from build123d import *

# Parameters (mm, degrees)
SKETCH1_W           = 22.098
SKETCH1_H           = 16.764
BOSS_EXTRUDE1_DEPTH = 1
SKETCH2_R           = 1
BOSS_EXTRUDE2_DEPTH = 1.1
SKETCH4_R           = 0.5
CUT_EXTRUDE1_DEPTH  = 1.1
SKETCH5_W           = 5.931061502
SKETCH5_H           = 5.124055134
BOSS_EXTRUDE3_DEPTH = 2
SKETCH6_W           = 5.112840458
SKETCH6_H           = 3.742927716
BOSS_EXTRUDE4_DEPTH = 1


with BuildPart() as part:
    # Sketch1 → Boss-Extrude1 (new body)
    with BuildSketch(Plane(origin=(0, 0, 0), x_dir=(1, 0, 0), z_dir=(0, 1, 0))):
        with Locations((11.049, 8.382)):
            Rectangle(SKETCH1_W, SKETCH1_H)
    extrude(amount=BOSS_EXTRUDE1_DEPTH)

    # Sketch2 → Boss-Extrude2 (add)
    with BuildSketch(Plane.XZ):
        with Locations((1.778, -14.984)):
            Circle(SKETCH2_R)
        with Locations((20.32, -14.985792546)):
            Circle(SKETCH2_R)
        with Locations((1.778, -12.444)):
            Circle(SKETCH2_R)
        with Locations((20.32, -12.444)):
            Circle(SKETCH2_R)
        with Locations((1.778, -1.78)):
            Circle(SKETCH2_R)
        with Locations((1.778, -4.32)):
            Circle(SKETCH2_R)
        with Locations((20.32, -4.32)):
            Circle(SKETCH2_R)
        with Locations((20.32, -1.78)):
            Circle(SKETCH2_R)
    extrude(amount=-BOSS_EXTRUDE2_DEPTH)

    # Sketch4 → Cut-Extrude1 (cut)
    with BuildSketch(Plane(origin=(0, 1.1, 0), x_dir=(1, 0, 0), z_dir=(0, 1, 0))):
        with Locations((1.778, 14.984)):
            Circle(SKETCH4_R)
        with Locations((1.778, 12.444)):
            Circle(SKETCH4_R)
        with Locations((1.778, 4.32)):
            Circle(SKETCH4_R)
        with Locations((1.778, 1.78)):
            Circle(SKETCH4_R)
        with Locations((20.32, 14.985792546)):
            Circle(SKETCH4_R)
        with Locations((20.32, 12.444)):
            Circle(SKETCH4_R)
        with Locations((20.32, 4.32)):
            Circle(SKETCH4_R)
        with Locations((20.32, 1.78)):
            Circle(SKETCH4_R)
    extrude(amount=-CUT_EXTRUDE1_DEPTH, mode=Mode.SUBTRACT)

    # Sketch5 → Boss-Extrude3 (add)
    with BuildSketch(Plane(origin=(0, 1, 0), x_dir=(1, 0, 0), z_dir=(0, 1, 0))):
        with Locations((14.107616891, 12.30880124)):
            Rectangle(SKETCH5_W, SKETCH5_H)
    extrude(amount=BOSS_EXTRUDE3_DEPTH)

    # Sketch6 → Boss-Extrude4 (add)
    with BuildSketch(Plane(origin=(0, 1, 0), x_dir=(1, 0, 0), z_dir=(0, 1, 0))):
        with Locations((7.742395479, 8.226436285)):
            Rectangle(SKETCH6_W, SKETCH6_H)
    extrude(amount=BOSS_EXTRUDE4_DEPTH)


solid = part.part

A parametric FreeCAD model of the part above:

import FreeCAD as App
import Part
import Sketcher
from FreeCAD import Vector


def add_polygon(sketch, points):
    """Adds a closed chain of lines whose ends are joined by coincident constraints."""
    first, n = sketch.GeometryCount, len(points)
    for a, b in zip(points, points[1:] + points[:1]):
        sketch.addGeometry(Part.LineSegment(App.Vector(*a, 0), App.Vector(*b, 0)), False)
    for i in range(n):
        sketch.addConstraint(Sketcher.Constraint("Coincident", first + i, 2, first + (i + 1) % n, 1))

doc = App.newDocument("Part")
body = doc.addObject("PartDesign::Body", "Body")

# Sketch on XZ plane
sketch1 = doc.addObject("Sketcher::SketchObject", "Sketch")
body.addObject(sketch1)
sketch1.AttachmentSupport = (doc.XZ_Plane, [""])
sketch1.MapMode = "FlatFace"
add_polygon(sketch1, [(0, -17), (0, 0), (22, 0), (22, -17)])  # lines 0-3
sketch1.addConstraint([
    Sketcher.Constraint("Vertical", 0),
    Sketcher.Constraint("Horizontal", 1),
    Sketcher.Constraint("Vertical", 2),
    Sketcher.Constraint("Horizontal", 3),
    Sketcher.Constraint("Coincident", 0, 2, -1, 1),
    Sketcher.Constraint("DistanceX", 1, 1, 1, 2, 22.098),
    Sketcher.Constraint("DistanceY", 0, 1, 0, 2, 16.764),
])
pad1 = doc.addObject("PartDesign::Pad", "Pad")
body.addObject(pad1)
pad1.Profile = sketch1
pad1.Length = 1
pad1.Reversed = True

# Sketch on XZ plane
sketch2 = doc.addObject("Sketcher::SketchObject", "Sketch001")
body.addObject(sketch2)
sketch2.AttachmentSupport = (doc.XZ_Plane, [""])
sketch2.MapMode = "FlatFace"
sketch2.addGeometry([
    Part.Circle(Vector(1.8, -15, 0), Vector(0, 0, 1), 1),  # 0
    Part.Circle(Vector(20.3, -15, 0), Vector(0, 0, 1), 1),  # 1
    Part.Circle(Vector(1.8, -12.4, 0), Vector(0, 0, 1), 1),  # 2
    Part.Circle(Vector(20.3, -12.4, 0), Vector(0, 0, 1), 1),  # 3
    Part.Circle(Vector(1.8, -1.8, 0), Vector(0, 0, 1), 1),  # 4
    Part.Circle(Vector(1.8, -4.3, 0), Vector(0, 0, 1), 1),  # 5
    Part.Circle(Vector(20.3, -4.3, 0), Vector(0, 0, 1), 1),  # 6
    Part.Circle(Vector(20.3, -1.8, 0), Vector(0, 0, 1), 1),  # 7
], False)
sketch2.addConstraint([
    Sketcher.Constraint("Equal", 0, 1),
    Sketcher.Constraint("Equal", 1, 2),
    Sketcher.Constraint("Equal", 2, 3),
    Sketcher.Constraint("Equal", 3, 4),
    Sketcher.Constraint("Equal", 4, 5),
    Sketcher.Constraint("Equal", 5, 6),
    Sketcher.Constraint("Equal", 6, 7),
    Sketcher.Constraint("Horizontal", 2, 3, 3, 3),
    Sketcher.Constraint("Horizontal", 5, 3, 6, 3),
    Sketcher.Constraint("Horizontal", 4, 3, 7, 3),
    Sketcher.Constraint("Vertical", 0, 3, 2, 3),
    Sketcher.Constraint("Vertical", 1, 3, 3, 3),
    Sketcher.Constraint("Vertical", 2, 3, 4, 3),
    Sketcher.Constraint("Vertical", 4, 3, 5, 3),
    Sketcher.Constraint("Vertical", 3, 3, 6, 3),
    Sketcher.Constraint("Vertical", 6, 3, 7, 3),
    Sketcher.Constraint("Diameter", 0, 2.0),
    Sketcher.Constraint("DistanceX", -1, 1, 1, 3, 20.32),
    Sketcher.Constraint("DistanceY", 4, 3, -1, 1, 1.78),
    Sketcher.Constraint("DistanceY", 5, 3, -1, 1, 4.32),
    Sketcher.Constraint("DistanceY", 0, 3, 2, 3, 2.54),
    Sketcher.Constraint("DistanceX", -1, 1, 0, 3, 1.778),
    Sketcher.Constraint("DistanceY", 0, 3, -1, 1, 14.984),
    Sketcher.Constraint("DistanceY", 1, 3, -1, 1, 14.985793),
])
pad2 = doc.addObject("PartDesign::Pad", "Pad001")
body.addObject(pad2)
pad2.Profile = sketch2
pad2.Length = 1.1
pad2.Reversed = True

# Sketch on XZ plane
sketch3 = doc.addObject("Sketcher::SketchObject", "Sketch002")
body.addObject(sketch3)
sketch3.AttachmentSupport = (doc.XZ_Plane, [""])
sketch3.MapMode = "FlatFace"
sketch3.AttachmentOffset = App.Placement(Vector(0, 0, -1.1), App.Rotation())
sketch3.addGeometry([
    Part.Circle(Vector(1.8, -15, 0), Vector(0, 0, 1), 0.5),  # 0
    Part.Circle(Vector(1.8, -12.4, 0), Vector(0, 0, 1), 0.5),  # 1
    Part.Circle(Vector(1.8, -4.3, 0), Vector(0, 0, 1), 0.5),  # 2
    Part.Circle(Vector(1.8, -1.8, 0), Vector(0, 0, 1), 0.5),  # 3
    Part.Circle(Vector(20.3, -15, 0), Vector(0, 0, 1), 0.5),  # 4
    Part.Circle(Vector(20.3, -12.4, 0), Vector(0, 0, 1), 0.5),  # 5
    Part.Circle(Vector(20.3, -4.3, 0), Vector(0, 0, 1), 0.5),  # 6
    Part.Circle(Vector(20.3, -1.8, 0), Vector(0, 0, 1), 0.5),  # 7
], False)
sketch3.addConstraint([
    Sketcher.Constraint("Equal", 0, 1),
    Sketcher.Constraint("Equal", 1, 2),
    Sketcher.Constraint("Equal", 2, 3),
    Sketcher.Constraint("Equal", 3, 4),
    Sketcher.Constraint("Equal", 4, 5),
    Sketcher.Constraint("Equal", 5, 6),
    Sketcher.Constraint("Equal", 6, 7),
    Sketcher.Constraint("Horizontal", 1, 3, 5, 3),
    Sketcher.Constraint("Horizontal", 2, 3, 6, 3),
    Sketcher.Constraint("Horizontal", 3, 3, 7, 3),
    Sketcher.Constraint("Vertical", 0, 3, 1, 3),
    Sketcher.Constraint("Vertical", 1, 3, 2, 3),
    Sketcher.Constraint("Vertical", 2, 3, 3, 3),
    Sketcher.Constraint("Vertical", 4, 3, 5, 3),
    Sketcher.Constraint("Vertical", 5, 3, 6, 3),
    Sketcher.Constraint("Vertical", 6, 3, 7, 3),
    Sketcher.Constraint("Diameter", 0, 1.0),
    Sketcher.Constraint("DistanceY", 2, 3, -1, 1, 4.32),
    Sketcher.Constraint("DistanceY", 3, 3, -1, 1, 1.78),
    Sketcher.Constraint("DistanceX", -1, 1, 4, 3, 20.32),
    Sketcher.Constraint("DistanceY", 0, 3, 1, 3, 2.54),
    Sketcher.Constraint("DistanceX", -1, 1, 0, 3, 1.778),
    Sketcher.Constraint("DistanceY", 0, 3, -1, 1, 14.984),
    Sketcher.Constraint("DistanceY", 4, 3, -1, 1, 14.985793),
])
pocket1 = doc.addObject("PartDesign::Pocket", "Pocket")
body.addObject(pocket1)
pocket1.Profile = sketch3
pocket1.Length = 1.1
pocket1.Reversed = True

# Sketch on XZ plane
sketch4 = doc.addObject("Sketcher::SketchObject", "Sketch003")
body.addObject(sketch4)
sketch4.AttachmentSupport = (doc.XZ_Plane, [""])
sketch4.MapMode = "FlatFace"
sketch4.AttachmentOffset = App.Placement(Vector(0, 0, -1), App.Rotation())
add_polygon(sketch4, [(11, -15), (11, -10), (17, -10), (17, -15)])  # lines 0-3
sketch4.addConstraint([
    Sketcher.Constraint("Vertical", 0),
    Sketcher.Constraint("Horizontal", 1),
    Sketcher.Constraint("Vertical", 2),
    Sketcher.Constraint("Horizontal", 3),
    Sketcher.Constraint("DistanceX", 1, 1, 1, 2, 5.931062),
    Sketcher.Constraint("DistanceY", 0, 1, 0, 2, 5.124055),
    Sketcher.Constraint("DistanceY", 2, 2, -1, 1, 14.870829),
    Sketcher.Constraint("DistanceX", -1, 1, 0, 2, 11.142086),
])
pad3 = doc.addObject("PartDesign::Pad", "Pad002")
body.addObject(pad3)
pad3.Profile = sketch4
pad3.Length = 2
pad3.Reversed = True

# Sketch on XZ plane
sketch5 = doc.addObject("Sketcher::SketchObject", "Sketch004")
body.addObject(sketch5)
sketch5.AttachmentSupport = (doc.XZ_Plane, [""])
sketch5.MapMode = "FlatFace"
sketch5.AttachmentOffset = App.Placement(Vector(0, 0, -1), App.Rotation())
add_polygon(sketch5, [(5.2, -10.1), (5.2, -6.4), (10.3, -6.4), (10.3, -10.1)])  # lines 0-3
sketch5.addConstraint([
    Sketcher.Constraint("Vertical", 0),
    Sketcher.Constraint("Horizontal", 1),
    Sketcher.Constraint("Vertical", 2),
    Sketcher.Constraint("Horizontal", 3),
    Sketcher.Constraint("DistanceX", 1, 1, 1, 2, 5.11284),
    Sketcher.Constraint("DistanceY", 2, 2, -1, 1, 10.0979),
    Sketcher.Constraint("DistanceY", 0, 1, 0, 2, 3.742928),
    Sketcher.Constraint("DistanceX", -1, 1, 0, 2, 5.185975),
])
pad4 = doc.addObject("PartDesign::Pad", "Pad003")
body.addObject(pad4)
pad4.Profile = sketch5
pad4.Length = 1
pad4.Reversed = True

doc.recompute()
